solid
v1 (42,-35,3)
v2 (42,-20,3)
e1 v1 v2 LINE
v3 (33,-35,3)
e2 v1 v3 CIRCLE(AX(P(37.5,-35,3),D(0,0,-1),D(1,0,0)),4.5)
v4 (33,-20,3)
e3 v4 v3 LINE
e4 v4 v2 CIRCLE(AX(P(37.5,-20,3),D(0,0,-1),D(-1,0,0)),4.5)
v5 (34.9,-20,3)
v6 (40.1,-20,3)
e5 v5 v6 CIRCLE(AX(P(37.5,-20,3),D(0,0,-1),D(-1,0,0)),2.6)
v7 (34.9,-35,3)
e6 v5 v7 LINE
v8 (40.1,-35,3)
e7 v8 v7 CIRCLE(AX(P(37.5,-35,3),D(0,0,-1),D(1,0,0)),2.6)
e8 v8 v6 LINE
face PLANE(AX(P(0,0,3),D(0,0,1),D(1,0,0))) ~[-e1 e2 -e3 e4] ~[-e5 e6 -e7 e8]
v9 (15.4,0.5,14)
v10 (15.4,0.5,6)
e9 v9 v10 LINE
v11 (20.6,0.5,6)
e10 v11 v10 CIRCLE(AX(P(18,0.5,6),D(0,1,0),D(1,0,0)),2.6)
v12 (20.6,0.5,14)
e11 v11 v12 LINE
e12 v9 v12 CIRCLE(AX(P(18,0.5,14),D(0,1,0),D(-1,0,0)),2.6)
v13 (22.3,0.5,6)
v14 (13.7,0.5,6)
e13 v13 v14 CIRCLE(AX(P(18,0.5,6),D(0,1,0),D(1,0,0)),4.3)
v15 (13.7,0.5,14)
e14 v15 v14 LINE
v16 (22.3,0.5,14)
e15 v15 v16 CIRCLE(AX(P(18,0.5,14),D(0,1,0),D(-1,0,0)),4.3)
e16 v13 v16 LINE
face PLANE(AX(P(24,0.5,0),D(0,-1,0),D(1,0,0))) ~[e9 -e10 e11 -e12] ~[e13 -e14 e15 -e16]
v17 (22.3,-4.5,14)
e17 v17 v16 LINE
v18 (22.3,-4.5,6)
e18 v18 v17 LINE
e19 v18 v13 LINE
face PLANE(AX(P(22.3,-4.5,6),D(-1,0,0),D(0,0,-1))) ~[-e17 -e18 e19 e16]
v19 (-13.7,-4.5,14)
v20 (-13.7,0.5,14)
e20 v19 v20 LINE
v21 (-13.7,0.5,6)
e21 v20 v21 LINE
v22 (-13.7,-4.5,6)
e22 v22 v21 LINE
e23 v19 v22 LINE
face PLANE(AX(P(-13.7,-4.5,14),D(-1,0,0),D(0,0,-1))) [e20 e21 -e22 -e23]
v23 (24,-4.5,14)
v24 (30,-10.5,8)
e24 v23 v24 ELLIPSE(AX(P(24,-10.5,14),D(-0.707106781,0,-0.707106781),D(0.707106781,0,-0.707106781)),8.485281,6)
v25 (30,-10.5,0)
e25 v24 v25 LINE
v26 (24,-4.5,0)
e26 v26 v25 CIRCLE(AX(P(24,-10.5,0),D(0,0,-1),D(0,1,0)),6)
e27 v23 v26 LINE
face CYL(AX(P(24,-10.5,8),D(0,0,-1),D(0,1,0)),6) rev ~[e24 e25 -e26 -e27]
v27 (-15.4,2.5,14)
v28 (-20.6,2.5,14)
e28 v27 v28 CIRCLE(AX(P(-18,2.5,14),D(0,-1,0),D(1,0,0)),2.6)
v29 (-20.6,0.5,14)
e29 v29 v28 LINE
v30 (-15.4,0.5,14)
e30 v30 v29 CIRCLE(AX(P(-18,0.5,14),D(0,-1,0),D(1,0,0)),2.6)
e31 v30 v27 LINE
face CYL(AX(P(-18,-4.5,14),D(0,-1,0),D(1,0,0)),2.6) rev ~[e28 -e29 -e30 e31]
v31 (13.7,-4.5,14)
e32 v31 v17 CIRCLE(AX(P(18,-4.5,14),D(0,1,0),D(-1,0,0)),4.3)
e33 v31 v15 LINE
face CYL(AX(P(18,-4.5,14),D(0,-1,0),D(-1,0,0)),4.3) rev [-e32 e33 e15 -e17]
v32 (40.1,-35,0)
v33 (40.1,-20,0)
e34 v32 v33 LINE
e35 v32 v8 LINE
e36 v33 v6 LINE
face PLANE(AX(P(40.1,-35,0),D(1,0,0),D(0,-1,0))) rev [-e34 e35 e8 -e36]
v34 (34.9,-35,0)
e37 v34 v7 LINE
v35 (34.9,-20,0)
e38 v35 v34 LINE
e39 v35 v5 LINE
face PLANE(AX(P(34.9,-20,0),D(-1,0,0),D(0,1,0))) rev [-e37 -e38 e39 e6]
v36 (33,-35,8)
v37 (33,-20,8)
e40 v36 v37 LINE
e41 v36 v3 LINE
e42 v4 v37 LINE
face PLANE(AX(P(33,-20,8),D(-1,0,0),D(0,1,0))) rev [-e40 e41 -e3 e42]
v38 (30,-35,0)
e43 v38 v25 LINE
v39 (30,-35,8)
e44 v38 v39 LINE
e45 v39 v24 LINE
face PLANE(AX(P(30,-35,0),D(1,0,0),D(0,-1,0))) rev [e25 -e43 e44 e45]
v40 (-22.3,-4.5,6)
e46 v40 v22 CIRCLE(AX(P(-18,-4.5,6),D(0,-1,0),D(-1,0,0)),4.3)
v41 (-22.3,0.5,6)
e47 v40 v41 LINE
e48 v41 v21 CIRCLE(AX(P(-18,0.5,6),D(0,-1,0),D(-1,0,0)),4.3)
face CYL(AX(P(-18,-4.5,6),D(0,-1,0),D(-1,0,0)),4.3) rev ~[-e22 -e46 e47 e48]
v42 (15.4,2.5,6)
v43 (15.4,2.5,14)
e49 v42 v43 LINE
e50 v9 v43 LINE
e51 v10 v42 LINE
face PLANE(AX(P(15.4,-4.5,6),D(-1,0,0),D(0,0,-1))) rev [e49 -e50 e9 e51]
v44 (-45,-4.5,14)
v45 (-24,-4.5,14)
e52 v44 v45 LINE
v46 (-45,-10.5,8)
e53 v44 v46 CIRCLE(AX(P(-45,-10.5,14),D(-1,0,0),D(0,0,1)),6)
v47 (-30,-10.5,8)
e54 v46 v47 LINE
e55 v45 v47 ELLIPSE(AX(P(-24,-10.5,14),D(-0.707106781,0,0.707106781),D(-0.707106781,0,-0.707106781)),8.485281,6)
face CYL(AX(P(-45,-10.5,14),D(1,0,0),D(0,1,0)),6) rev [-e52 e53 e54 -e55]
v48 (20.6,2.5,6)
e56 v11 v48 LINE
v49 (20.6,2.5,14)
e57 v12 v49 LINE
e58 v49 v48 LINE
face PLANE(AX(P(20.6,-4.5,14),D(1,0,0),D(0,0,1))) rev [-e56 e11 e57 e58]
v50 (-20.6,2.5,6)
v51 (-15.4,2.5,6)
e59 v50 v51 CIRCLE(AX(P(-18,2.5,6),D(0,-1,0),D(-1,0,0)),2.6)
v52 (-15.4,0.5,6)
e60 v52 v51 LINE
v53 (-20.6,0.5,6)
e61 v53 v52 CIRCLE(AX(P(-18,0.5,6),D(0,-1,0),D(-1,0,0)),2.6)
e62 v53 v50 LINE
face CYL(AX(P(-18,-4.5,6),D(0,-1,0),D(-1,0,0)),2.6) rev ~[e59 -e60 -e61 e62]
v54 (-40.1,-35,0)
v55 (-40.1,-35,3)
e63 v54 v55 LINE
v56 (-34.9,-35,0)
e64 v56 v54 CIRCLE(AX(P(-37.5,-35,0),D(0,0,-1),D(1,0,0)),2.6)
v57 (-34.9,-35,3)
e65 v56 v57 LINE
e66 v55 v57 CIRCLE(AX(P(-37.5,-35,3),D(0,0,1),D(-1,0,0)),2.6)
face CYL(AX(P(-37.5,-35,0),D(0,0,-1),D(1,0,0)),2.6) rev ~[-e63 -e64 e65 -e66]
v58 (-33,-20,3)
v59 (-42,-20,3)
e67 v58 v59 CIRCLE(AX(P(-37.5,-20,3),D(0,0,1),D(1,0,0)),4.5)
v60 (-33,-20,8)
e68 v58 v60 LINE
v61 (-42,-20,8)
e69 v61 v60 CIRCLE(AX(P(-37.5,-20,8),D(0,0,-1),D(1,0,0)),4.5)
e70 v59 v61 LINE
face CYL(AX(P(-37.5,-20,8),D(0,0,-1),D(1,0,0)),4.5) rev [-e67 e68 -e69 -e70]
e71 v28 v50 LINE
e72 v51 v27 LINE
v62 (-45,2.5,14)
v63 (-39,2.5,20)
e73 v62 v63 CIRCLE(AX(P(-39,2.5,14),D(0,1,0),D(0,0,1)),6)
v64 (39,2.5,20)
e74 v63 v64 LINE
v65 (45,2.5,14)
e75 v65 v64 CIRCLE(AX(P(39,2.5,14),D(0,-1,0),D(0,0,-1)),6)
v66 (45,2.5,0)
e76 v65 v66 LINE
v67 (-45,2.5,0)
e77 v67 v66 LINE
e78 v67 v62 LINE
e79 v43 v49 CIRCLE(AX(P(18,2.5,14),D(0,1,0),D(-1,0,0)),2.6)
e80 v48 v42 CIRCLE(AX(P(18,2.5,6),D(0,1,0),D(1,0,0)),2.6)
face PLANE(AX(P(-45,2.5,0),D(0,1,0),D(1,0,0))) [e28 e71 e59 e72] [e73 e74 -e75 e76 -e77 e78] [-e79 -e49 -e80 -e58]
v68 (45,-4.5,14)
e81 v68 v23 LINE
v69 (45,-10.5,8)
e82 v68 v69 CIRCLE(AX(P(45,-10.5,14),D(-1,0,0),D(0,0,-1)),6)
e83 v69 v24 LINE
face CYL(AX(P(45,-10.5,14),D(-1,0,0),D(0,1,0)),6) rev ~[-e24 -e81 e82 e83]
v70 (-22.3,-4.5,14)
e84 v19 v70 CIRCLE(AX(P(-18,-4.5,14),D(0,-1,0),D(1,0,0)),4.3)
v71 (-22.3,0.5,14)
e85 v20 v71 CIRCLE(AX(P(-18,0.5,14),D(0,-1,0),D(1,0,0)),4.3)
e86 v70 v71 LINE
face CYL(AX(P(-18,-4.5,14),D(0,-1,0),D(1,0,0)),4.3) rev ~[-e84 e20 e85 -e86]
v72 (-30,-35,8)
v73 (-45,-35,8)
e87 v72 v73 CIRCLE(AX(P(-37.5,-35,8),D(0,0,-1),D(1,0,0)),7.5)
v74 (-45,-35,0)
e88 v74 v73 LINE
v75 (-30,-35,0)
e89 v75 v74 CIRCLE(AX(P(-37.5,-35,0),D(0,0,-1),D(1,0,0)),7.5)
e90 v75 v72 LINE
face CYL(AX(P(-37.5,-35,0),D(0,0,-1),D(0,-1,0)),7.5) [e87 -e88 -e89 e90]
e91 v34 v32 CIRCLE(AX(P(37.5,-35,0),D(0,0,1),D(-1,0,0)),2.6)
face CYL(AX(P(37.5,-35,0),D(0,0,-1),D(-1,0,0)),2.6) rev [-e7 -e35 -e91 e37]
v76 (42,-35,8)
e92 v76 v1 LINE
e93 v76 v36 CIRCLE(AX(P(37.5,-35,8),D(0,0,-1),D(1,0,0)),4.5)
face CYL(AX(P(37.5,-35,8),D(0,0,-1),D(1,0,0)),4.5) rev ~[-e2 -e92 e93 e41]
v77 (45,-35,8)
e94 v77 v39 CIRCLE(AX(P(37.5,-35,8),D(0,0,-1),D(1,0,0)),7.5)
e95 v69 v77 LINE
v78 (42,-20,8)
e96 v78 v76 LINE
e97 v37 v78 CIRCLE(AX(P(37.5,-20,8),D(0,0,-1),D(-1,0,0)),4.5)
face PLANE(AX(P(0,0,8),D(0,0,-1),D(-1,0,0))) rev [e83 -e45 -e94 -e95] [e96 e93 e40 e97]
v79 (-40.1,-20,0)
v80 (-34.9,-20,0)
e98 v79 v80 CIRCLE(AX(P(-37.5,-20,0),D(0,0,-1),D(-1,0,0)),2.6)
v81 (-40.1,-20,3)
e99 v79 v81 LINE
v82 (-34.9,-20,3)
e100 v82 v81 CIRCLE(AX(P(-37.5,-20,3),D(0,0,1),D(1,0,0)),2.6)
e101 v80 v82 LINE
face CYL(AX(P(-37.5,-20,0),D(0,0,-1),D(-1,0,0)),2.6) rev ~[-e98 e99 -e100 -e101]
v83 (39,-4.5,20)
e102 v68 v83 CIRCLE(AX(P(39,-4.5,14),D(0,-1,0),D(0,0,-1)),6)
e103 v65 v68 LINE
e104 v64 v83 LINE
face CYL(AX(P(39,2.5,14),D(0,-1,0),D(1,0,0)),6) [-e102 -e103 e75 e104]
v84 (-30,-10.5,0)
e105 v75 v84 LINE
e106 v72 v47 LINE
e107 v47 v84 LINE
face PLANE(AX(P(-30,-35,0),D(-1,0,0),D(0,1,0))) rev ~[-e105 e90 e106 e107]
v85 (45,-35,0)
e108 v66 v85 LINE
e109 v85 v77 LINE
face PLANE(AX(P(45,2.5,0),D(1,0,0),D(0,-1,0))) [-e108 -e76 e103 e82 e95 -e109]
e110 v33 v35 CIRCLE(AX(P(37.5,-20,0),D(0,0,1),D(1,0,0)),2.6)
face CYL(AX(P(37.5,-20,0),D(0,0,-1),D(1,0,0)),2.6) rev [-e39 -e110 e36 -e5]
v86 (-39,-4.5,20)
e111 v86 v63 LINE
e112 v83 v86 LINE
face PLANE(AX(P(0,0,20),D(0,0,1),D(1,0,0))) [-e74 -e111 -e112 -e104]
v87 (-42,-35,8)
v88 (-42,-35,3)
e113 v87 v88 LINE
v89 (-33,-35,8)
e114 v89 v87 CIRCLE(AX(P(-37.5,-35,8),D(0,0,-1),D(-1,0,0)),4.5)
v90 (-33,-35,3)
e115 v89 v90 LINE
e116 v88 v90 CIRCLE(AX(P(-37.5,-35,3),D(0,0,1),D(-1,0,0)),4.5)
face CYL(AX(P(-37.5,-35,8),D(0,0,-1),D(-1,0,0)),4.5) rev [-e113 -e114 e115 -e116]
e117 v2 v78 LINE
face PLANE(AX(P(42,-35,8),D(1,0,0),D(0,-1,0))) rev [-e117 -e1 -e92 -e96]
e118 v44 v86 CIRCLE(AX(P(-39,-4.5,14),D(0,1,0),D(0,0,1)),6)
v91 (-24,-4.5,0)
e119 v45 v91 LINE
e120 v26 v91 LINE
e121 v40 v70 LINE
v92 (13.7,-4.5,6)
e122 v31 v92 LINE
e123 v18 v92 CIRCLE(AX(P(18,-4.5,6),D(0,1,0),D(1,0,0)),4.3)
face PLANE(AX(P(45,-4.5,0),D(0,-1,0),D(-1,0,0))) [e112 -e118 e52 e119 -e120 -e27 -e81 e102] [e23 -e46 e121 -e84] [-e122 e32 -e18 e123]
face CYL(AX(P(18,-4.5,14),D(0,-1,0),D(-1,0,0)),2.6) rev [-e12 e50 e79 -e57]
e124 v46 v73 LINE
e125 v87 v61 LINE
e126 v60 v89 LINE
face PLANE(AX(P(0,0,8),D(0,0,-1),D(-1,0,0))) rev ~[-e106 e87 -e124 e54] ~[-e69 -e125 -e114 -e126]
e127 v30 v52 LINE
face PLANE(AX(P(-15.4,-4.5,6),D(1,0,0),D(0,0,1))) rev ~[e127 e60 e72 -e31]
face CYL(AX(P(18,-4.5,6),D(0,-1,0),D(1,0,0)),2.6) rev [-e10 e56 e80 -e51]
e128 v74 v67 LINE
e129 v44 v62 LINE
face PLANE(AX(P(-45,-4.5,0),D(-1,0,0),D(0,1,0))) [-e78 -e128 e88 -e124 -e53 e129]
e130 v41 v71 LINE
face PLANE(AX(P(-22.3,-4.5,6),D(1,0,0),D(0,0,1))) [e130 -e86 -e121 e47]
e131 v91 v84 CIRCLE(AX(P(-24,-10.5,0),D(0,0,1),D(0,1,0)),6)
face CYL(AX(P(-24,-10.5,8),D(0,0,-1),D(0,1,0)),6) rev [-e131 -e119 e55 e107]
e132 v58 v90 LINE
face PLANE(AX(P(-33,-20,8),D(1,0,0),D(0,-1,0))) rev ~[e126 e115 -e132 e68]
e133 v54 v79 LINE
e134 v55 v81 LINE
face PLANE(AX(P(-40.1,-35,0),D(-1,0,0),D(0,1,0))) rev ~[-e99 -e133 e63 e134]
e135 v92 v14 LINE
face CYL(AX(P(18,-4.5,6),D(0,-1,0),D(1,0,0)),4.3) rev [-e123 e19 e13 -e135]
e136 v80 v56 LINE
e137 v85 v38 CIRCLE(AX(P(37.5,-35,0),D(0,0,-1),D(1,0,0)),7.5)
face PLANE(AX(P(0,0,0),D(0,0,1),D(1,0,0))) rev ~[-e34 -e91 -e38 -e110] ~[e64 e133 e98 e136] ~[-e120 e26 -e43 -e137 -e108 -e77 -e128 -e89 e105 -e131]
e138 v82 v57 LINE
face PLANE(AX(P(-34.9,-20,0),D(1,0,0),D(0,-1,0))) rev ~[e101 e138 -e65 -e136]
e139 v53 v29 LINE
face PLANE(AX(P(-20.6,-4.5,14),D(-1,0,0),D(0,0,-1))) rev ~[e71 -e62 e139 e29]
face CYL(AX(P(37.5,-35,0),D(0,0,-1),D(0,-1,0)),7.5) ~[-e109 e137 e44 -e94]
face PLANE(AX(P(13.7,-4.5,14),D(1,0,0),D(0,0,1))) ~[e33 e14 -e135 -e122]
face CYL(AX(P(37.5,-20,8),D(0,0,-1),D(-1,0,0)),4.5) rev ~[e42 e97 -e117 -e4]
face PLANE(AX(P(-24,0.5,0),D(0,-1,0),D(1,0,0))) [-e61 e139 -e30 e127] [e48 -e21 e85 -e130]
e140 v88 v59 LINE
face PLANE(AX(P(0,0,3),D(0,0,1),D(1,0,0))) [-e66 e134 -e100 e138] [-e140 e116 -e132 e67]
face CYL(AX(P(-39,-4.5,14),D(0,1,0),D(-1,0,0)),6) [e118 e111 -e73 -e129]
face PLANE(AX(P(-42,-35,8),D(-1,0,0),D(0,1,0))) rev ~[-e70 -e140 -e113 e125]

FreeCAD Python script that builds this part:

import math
import FreeCAD as App
import Part
import Sketcher
from FreeCAD import Vector


def edges_at(feature, points):
    """Names of the edges that pass closest to the given points."""
    edges = feature.Shape.Edges
    near = lambda p: min(range(len(edges)), key=lambda i: edges[i].distToShape(Part.Vertex(*p))[0])
    return sorted({f"Edge{near(p) + 1}" for p in points})


def add_polygon(sketch, points):
    """Adds a closed chain of lines whose ends are joined by coincident constraints."""
    first, n = sketch.GeometryCount, len(points)
    for a, b in zip(points, points[1:] + points[:1]):
        sketch.addGeometry(Part.LineSegment(App.Vector(*a, 0), App.Vector(*b, 0)), False)
    for i in range(n):
        sketch.addConstraint(Sketcher.Constraint("Coincident", first + i, 2, first + (i + 1) % n, 1))

doc = App.newDocument("Part")
params = doc.addObject("Spreadsheet::Sheet", "Params")
for row, (alias, value) in enumerate([
    ("sketch1_width", "90 mm"),
    ("sketch1_height", "7 mm"),
    ("pad1_length", "20 mm"),
    ("sketch2_radius", "7.5 mm"),
    ("sketch2_radius2", "2.6 mm"),
    ("sketch2_height", "37.5 mm"),
    ("pad2_length", "8 mm"),
    ("fillet_radius", "6 mm"),
    ("sketch3_radius", "4.5 mm"),
    ("sketch3_radius2", "2.6 mm"),
    ("sketch3_height", "15 mm"),
    ("pocket1_length", "5 mm"),
    ("pocket1_length2", "5 mm"),
    ("sketch4_radius", "2.6 mm"),
    ("sketch4_height", "8 mm"),
    ("pocket2_length", "7 mm"),
    ("sketch5_radius", "4.3 mm"),
    ("sketch5_radius2", "2.6 mm"),
    ("sketch5_height", "8 mm"),
    ("pocket3_length", "5 mm"),
    ("fillet2_radius", "6 mm"),
], start=1):
    params.set(f"A{row}", alias)
    params.set(f"B{row}", "=" + value)
    params.setAlias(f"B{row}", alias)

body = doc.addObject("PartDesign::Body", "Body")

sketch1 = doc.addObject("Sketcher::SketchObject", "Sketch")
body.addObject(sketch1)
sketch1.AttachmentSupport = (doc.XY_Plane, [""])
sketch1.MapMode = "FlatFace"
add_polygon(sketch1, [(45, 2), (-45, 2), (-45, -4), (45, -4)])
sketch1.addConstraint([
    Sketcher.Constraint("Horizontal", 0),
    Sketcher.Constraint("Vertical", 1),
    Sketcher.Constraint("Horizontal", 2),
    Sketcher.Constraint("Vertical", 3),
    Sketcher.Constraint("DistanceX", 0, 2, 0, 1, 90.0),
    Sketcher.Constraint("DistanceY", 1, 2, 1, 1, 7.0),
    Sketcher.Constraint("DistanceX", 0, 2, -1, 1, 45.0),
    Sketcher.Constraint("DistanceY", -1, 1, 0, 2, 2.5),
])
sketch1.setExpression("Constraints[8]", "Params.sketch1_width")
sketch1.setExpression("Constraints[9]", "Params.sketch1_height")
pad1 = doc.addObject("PartDesign::Pad", "Pad")
body.addObject(pad1)
pad1.Profile = sketch1
pad1.setExpression("Length", "Params.pad1_length")

sketch2 = doc.addObject("Sketcher::SketchObject", "Sketch001")
body.addObject(sketch2)
sketch2.AttachmentSupport = (doc.XY_Plane, [""])
sketch2.MapMode = "FlatFace"
sketch2.addGeometry([
    Part.LineSegment(Vector(-45, 2.5, 0), Vector(-30, 2.5, 0)),
    Part.LineSegment(Vector(-30, 2.5, 0), Vector(-30, -35, 0)),
    Part.ArcOfCircle(Part.Circle(Vector(-37.5, -35, 0), Vector(0, 0, 1), 7.5), math.radians(180), math.radians(360)),
    Part.LineSegment(Vector(-45, -35, 0), Vector(-45, 2.5, 0)),
    Part.LineSegment(Vector(-40.1, -20, 0), Vector(-40.1, -35, 0)),
    Part.ArcOfCircle(Part.Circle(Vector(-37.5, -35, 0), Vector(0, 0, 1), 2.6), math.radians(180), math.radians(360)),
    Part.LineSegment(Vector(-34.9, -35, 0), Vector(-34.9, -20, 0)),
    Part.ArcOfCircle(Part.Circle(Vector(-37.5, -20, 0), Vector(0, 0, 1), 2.6), math.radians(0), math.radians(180)),
], False)
sketch2.addConstraint([
    Sketcher.Constraint("Coincident", 0, 2, 1, 1),
    Sketcher.Constraint("Tangent", 1, 2, 2, 2),
    Sketcher.Constraint("Tangent", 2, 1, 3, 1),
    Sketcher.Constraint("Coincident", 3, 2, 0, 1),
    Sketcher.Constraint("Tangent", 4, 2, 5, 1),
    Sketcher.Constraint("Tangent", 5, 2, 6, 1),
    Sketcher.Constraint("Tangent", 6, 2, 7, 1),
    Sketcher.Constraint("Tangent", 7, 2, 4, 1),
    Sketcher.Constraint("Horizontal", 0),
    Sketcher.Constraint("Vertical", 1),
    Sketcher.Constraint("Vertical", 3),
    Sketcher.Constraint("Vertical", 4),
    Sketcher.Constraint("Vertical", 6),
    Sketcher.Constraint("Coincident", 5, 3, 2, 3),
    Sketcher.Constraint("Equal", 0, 4),
    Sketcher.Constraint("Radius", 2, 7.5),
    Sketcher.Constraint("Radius", 5, 2.6),
    Sketcher.Constraint("DistanceX", 2, 1, -1, 1, 45.0),
    Sketcher.Constraint("DistanceY", 1, 2, 1, 1, 37.5),
    Sketcher.Constraint("DistanceY", 2, 3, -1, 1, 35.0),
])
sketch2.setExpression("Constraints[15]", "Params.sketch2_radius")
sketch2.setExpression("Constraints[16]", "Params.sketch2_radius2")
sketch2.setExpression("Constraints[18]", "Params.sketch2_height")
pad2 = doc.addObject("PartDesign::Pad", "Pad001")
body.addObject(pad2)
pad2.Profile = sketch2
pad2.setExpression("Length", "Params.pad2_length")
doc.recompute()

fillet = doc.addObject("PartDesign::Fillet", "Fillet")
body.addObject(fillet)
fillet.Base = (pad2, edges_at(pad2, [(-30, -4.5, 4), (-37.5, -4.5, 8)]))
fillet.setExpression("Radius", "Params.fillet_radius")

sketch3 = doc.addObject("Sketcher::SketchObject", "Sketch002")
body.addObject(sketch3)
sketch3.AttachmentSupport = (doc.XY_Plane, [""])
sketch3.MapMode = "FlatFace"
sketch3.AttachmentOffset = App.Placement(Vector(0, 0, 8), App.Rotation())
sketch3.addGeometry([
    Part.LineSegment(Vector(-33, -35, 0), Vector(-33, -20, 0)),
    Part.ArcOfCircle(Part.Circle(Vector(-37.5, -20, 0), Vector(0, 0, 1), 4.5), math.radians(0), math.radians(180)),
    Part.LineSegment(Vector(-42, -20, 0), Vector(-42, -35, 0)),
    Part.ArcOfCircle(Part.Circle(Vector(-37.5, -35, 0), Vector(0, 0, 1), 4.5), math.radians(180), math.radians(360)),
    Part.ArcOfCircle(Part.Circle(Vector(-37.5, -20, 0), Vector(0, 0, 1), 2.6), math.radians(0), math.radians(180)),
    Part.LineSegment(Vector(-34.9, -20, 0), Vector(-34.9, -35, 0)),
    Part.ArcOfCircle(Part.Circle(Vector(-37.5, -35, 0), Vector(0, 0, 1), 2.6), math.radians(180), math.radians(360)),
    Part.LineSegment(Vector(-40.1, -35, 0), Vector(-40.1, -20, 0)),
], False)
sketch3.addConstraint([
    Sketcher.Constraint("Tangent", 0, 2, 1, 1),
    Sketcher.Constraint("Tangent", 1, 2, 2, 1),
    Sketcher.Constraint("Tangent", 2, 2, 3, 1),
    Sketcher.Constraint("Tangent", 3, 2, 0, 1),
    Sketcher.Constraint("Tangent", 4, 1, 5, 1),
    Sketcher.Constraint("Tangent", 5, 2, 6, 2),
    Sketcher.Constraint("Tangent", 6, 1, 7, 1),
    Sketcher.Constraint("Tangent", 7, 2, 4, 2),
    Sketcher.Constraint("Vertical", 0),
    Sketcher.Constraint("Vertical", 2),
    Sketcher.Constraint("Vertical", 5),
    Sketcher.Constraint("Vertical", 7),
    Sketcher.Constraint("Coincident", 4, 3, 1, 3),
    Sketcher.Constraint("Horizontal", 6, 3, 2, 2),
    Sketcher.Constraint("Radius", 1, 4.5),
    Sketcher.Constraint("Radius", 4, 2.6),
    Sketcher.Constraint("DistanceY", 0, 1, 0, 2, 15.0),
    Sketcher.Constraint("DistanceY", 1, 3, -1, 1, 20.0),
    Sketcher.Constraint("DistanceX", 0, 2, -1, 1, 33.0),
])
sketch3.setExpression("Constraints[14]", "Params.sketch3_radius")
sketch3.setExpression("Constraints[15]", "Params.sketch3_radius2")
sketch3.setExpression("Constraints[16]", "Params.sketch3_height")
pocket1 = doc.addObject("PartDesign::Pocket", "Pocket")
body.addObject(pocket1)
pocket1.Profile = sketch3
pocket1.Type = "TwoLengths"
pocket1.setExpression("Length", "Params.pocket1_length")
pocket1.setExpression("Length2", "Params.pocket1_length2")
pocket1.Reversed = True
doc.recompute()

mirrored = doc.addObject("PartDesign::Mirrored", "Mirrored")
body.addObject(mirrored)
mirrored.Originals = [pad2, fillet, pocket1]
mirrored.MirrorPlane = (doc.YZ_Plane, [""])
body.Tip = mirrored

sketch4 = doc.addObject("Sketcher::SketchObject", "Sketch003")
body.addObject(sketch4)
sketch4.AttachmentSupport = (doc.XZ_Plane, [""])
sketch4.MapMode = "FlatFace"
sketch4.AttachmentOffset = App.Placement(Vector(0, 0, 4.5), App.Rotation())
sketch4.addGeometry([
    Part.ArcOfCircle(Part.Circle(Vector(-18, 14, 0), Vector(0, 0, 1), 2.6), math.radians(0), math.radians(180)),
    Part.LineSegment(Vector(-20.6, 14, 0), Vector(-20.6, 6, 0)),
    Part.ArcOfCircle(Part.Circle(Vector(-18, 6, 0), Vector(0, 0, 1), 2.6), math.radians(180), math.radians(360)),
    Part.LineSegment(Vector(-15.4, 6, 0), Vector(-15.4, 14, 0)),
], False)
sketch4.addConstraint([
    Sketcher.Constraint("Tangent", 0, 2, 1, 1),
    Sketcher.Constraint("Tangent", 1, 2, 2, 1),
    Sketcher.Constraint("Tangent", 2, 2, 3, 1),
    Sketcher.Constraint("Tangent", 3, 2, 0, 1),
    Sketcher.Constraint("Vertical", 1),
    Sketcher.Constraint("Vertical", 3),
    Sketcher.Constraint("Radius", 0, 2.6),
    Sketcher.Constraint("DistanceY", 1, 2, 1, 1, 8.0),
    Sketcher.Constraint("DistanceX", 0, 3, -1, 1, 18.0),
    Sketcher.Constraint("DistanceY", -1, 1, 2, 3, 6.0),
])
sketch4.setExpression("Constraints[6]", "Params.sketch4_radius")
sketch4.setExpression("Constraints[7]", "Params.sketch4_height")
pocket2 = doc.addObject("PartDesign::Pocket", "Pocket001")
body.addObject(pocket2)
pocket2.Profile = sketch4
pocket2.setExpression("Length", "Params.pocket2_length")

sketch5 = doc.addObject("Sketcher::SketchObject", "Sketch004")
body.addObject(sketch5)
sketch5.AttachmentSupport = (doc.XZ_Plane, [""])
sketch5.MapMode = "FlatFace"
sketch5.AttachmentOffset = App.Placement(Vector(0, 0, 4.5), App.Rotation())
sketch5.addGeometry([
    Part.LineSegment(Vector(-13.7, 6, 0), Vector(-13.7, 14, 0)),
    Part.ArcOfCircle(Part.Circle(Vector(-18, 14, 0), Vector(0, 0, 1), 4.3), math.radians(0), math.radians(180)),
    Part.LineSegment(Vector(-22.3, 14, 0), Vector(-22.3, 6, 0)),
    Part.ArcOfCircle(Part.Circle(Vector(-18, 6, 0), Vector(0, 0, 1), 4.3), math.radians(180), math.radians(360)),
    Part.ArcOfCircle(Part.Circle(Vector(-18, 14, 0), Vector(0, 0, 1), 2.6), math.radians(0), math.radians(180)),
    Part.LineSegment(Vector(-15.4, 14, 0), Vector(-15.4, 6, 0)),
    Part.ArcOfCircle(Part.Circle(Vector(-18, 6, 0), Vector(0, 0, 1), 2.6), math.radians(180), math.radians(360)),
    Part.LineSegment(Vector(-20.6, 6, 0), Vector(-20.6, 14, 0)),
], False)
sketch5.addConstraint([
    Sketcher.Constraint("Tangent", 0, 2, 1, 1),
    Sketcher.Constraint("Tangent", 1, 2, 2, 1),
    Sketcher.Constraint("Tangent", 2, 2, 3, 1),
    Sketcher.Constraint("Tangent", 3, 2, 0, 1),
    Sketcher.Constraint("Tangent", 4, 1, 5, 1),
    Sketcher.Constraint("Tangent", 5, 2, 6, 2),
    Sketcher.Constraint("Tangent", 6, 1, 7, 1),
    Sketcher.Constraint("Tangent", 7, 2, 4, 2),
    Sketcher.Constraint("Vertical", 0),
    Sketcher.Constraint("Vertical", 2),
    Sketcher.Constraint("Vertical", 5),
    Sketcher.Constraint("Vertical", 7),
    Sketcher.Constraint("Coincident", 4, 3, 1, 3),
    Sketcher.Constraint("Horizontal", 6, 3, 2, 2),
    Sketcher.Constraint("Radius", 1, 4.3),
    Sketcher.Constraint("Radius", 4, 2.6),
    Sketcher.Constraint("DistanceY", 0, 1, 0, 2, 8.0),
    Sketcher.Constraint("DistanceX", 1, 3, -1, 1, 18.0),
    Sketcher.Constraint("DistanceY", -1, 1, 1, 3, 14.0),
])
sketch5.setExpression("Constraints[14]", "Params.sketch5_radius")
sketch5.setExpression("Constraints[15]", "Params.sketch5_radius2")
sketch5.setExpression("Constraints[16]", "Params.sketch5_height")
pocket3 = doc.addObject("PartDesign::Pocket", "Pocket002")
body.addObject(pocket3)
pocket3.Profile = sketch5
pocket3.setExpression("Length", "Params.pocket3_length")
doc.recompute()

mirrored2 = doc.addObject("PartDesign::Mirrored", "Mirrored001")
body.addObject(mirrored2)
mirrored2.Originals = [pocket2, pocket3]
mirrored2.MirrorPlane = (doc.YZ_Plane, [""])
body.Tip = mirrored2
doc.recompute()

fillet2 = doc.addObject("PartDesign::Fillet", "Fillet001")
body.addObject(fillet2)
fillet2.Base = (mirrored2, edges_at(mirrored2, [(-45, -1, 20), (45, -1, 20)]))
fillet2.setExpression("Radius", "Params.fillet2_radius")

doc.recompute()
